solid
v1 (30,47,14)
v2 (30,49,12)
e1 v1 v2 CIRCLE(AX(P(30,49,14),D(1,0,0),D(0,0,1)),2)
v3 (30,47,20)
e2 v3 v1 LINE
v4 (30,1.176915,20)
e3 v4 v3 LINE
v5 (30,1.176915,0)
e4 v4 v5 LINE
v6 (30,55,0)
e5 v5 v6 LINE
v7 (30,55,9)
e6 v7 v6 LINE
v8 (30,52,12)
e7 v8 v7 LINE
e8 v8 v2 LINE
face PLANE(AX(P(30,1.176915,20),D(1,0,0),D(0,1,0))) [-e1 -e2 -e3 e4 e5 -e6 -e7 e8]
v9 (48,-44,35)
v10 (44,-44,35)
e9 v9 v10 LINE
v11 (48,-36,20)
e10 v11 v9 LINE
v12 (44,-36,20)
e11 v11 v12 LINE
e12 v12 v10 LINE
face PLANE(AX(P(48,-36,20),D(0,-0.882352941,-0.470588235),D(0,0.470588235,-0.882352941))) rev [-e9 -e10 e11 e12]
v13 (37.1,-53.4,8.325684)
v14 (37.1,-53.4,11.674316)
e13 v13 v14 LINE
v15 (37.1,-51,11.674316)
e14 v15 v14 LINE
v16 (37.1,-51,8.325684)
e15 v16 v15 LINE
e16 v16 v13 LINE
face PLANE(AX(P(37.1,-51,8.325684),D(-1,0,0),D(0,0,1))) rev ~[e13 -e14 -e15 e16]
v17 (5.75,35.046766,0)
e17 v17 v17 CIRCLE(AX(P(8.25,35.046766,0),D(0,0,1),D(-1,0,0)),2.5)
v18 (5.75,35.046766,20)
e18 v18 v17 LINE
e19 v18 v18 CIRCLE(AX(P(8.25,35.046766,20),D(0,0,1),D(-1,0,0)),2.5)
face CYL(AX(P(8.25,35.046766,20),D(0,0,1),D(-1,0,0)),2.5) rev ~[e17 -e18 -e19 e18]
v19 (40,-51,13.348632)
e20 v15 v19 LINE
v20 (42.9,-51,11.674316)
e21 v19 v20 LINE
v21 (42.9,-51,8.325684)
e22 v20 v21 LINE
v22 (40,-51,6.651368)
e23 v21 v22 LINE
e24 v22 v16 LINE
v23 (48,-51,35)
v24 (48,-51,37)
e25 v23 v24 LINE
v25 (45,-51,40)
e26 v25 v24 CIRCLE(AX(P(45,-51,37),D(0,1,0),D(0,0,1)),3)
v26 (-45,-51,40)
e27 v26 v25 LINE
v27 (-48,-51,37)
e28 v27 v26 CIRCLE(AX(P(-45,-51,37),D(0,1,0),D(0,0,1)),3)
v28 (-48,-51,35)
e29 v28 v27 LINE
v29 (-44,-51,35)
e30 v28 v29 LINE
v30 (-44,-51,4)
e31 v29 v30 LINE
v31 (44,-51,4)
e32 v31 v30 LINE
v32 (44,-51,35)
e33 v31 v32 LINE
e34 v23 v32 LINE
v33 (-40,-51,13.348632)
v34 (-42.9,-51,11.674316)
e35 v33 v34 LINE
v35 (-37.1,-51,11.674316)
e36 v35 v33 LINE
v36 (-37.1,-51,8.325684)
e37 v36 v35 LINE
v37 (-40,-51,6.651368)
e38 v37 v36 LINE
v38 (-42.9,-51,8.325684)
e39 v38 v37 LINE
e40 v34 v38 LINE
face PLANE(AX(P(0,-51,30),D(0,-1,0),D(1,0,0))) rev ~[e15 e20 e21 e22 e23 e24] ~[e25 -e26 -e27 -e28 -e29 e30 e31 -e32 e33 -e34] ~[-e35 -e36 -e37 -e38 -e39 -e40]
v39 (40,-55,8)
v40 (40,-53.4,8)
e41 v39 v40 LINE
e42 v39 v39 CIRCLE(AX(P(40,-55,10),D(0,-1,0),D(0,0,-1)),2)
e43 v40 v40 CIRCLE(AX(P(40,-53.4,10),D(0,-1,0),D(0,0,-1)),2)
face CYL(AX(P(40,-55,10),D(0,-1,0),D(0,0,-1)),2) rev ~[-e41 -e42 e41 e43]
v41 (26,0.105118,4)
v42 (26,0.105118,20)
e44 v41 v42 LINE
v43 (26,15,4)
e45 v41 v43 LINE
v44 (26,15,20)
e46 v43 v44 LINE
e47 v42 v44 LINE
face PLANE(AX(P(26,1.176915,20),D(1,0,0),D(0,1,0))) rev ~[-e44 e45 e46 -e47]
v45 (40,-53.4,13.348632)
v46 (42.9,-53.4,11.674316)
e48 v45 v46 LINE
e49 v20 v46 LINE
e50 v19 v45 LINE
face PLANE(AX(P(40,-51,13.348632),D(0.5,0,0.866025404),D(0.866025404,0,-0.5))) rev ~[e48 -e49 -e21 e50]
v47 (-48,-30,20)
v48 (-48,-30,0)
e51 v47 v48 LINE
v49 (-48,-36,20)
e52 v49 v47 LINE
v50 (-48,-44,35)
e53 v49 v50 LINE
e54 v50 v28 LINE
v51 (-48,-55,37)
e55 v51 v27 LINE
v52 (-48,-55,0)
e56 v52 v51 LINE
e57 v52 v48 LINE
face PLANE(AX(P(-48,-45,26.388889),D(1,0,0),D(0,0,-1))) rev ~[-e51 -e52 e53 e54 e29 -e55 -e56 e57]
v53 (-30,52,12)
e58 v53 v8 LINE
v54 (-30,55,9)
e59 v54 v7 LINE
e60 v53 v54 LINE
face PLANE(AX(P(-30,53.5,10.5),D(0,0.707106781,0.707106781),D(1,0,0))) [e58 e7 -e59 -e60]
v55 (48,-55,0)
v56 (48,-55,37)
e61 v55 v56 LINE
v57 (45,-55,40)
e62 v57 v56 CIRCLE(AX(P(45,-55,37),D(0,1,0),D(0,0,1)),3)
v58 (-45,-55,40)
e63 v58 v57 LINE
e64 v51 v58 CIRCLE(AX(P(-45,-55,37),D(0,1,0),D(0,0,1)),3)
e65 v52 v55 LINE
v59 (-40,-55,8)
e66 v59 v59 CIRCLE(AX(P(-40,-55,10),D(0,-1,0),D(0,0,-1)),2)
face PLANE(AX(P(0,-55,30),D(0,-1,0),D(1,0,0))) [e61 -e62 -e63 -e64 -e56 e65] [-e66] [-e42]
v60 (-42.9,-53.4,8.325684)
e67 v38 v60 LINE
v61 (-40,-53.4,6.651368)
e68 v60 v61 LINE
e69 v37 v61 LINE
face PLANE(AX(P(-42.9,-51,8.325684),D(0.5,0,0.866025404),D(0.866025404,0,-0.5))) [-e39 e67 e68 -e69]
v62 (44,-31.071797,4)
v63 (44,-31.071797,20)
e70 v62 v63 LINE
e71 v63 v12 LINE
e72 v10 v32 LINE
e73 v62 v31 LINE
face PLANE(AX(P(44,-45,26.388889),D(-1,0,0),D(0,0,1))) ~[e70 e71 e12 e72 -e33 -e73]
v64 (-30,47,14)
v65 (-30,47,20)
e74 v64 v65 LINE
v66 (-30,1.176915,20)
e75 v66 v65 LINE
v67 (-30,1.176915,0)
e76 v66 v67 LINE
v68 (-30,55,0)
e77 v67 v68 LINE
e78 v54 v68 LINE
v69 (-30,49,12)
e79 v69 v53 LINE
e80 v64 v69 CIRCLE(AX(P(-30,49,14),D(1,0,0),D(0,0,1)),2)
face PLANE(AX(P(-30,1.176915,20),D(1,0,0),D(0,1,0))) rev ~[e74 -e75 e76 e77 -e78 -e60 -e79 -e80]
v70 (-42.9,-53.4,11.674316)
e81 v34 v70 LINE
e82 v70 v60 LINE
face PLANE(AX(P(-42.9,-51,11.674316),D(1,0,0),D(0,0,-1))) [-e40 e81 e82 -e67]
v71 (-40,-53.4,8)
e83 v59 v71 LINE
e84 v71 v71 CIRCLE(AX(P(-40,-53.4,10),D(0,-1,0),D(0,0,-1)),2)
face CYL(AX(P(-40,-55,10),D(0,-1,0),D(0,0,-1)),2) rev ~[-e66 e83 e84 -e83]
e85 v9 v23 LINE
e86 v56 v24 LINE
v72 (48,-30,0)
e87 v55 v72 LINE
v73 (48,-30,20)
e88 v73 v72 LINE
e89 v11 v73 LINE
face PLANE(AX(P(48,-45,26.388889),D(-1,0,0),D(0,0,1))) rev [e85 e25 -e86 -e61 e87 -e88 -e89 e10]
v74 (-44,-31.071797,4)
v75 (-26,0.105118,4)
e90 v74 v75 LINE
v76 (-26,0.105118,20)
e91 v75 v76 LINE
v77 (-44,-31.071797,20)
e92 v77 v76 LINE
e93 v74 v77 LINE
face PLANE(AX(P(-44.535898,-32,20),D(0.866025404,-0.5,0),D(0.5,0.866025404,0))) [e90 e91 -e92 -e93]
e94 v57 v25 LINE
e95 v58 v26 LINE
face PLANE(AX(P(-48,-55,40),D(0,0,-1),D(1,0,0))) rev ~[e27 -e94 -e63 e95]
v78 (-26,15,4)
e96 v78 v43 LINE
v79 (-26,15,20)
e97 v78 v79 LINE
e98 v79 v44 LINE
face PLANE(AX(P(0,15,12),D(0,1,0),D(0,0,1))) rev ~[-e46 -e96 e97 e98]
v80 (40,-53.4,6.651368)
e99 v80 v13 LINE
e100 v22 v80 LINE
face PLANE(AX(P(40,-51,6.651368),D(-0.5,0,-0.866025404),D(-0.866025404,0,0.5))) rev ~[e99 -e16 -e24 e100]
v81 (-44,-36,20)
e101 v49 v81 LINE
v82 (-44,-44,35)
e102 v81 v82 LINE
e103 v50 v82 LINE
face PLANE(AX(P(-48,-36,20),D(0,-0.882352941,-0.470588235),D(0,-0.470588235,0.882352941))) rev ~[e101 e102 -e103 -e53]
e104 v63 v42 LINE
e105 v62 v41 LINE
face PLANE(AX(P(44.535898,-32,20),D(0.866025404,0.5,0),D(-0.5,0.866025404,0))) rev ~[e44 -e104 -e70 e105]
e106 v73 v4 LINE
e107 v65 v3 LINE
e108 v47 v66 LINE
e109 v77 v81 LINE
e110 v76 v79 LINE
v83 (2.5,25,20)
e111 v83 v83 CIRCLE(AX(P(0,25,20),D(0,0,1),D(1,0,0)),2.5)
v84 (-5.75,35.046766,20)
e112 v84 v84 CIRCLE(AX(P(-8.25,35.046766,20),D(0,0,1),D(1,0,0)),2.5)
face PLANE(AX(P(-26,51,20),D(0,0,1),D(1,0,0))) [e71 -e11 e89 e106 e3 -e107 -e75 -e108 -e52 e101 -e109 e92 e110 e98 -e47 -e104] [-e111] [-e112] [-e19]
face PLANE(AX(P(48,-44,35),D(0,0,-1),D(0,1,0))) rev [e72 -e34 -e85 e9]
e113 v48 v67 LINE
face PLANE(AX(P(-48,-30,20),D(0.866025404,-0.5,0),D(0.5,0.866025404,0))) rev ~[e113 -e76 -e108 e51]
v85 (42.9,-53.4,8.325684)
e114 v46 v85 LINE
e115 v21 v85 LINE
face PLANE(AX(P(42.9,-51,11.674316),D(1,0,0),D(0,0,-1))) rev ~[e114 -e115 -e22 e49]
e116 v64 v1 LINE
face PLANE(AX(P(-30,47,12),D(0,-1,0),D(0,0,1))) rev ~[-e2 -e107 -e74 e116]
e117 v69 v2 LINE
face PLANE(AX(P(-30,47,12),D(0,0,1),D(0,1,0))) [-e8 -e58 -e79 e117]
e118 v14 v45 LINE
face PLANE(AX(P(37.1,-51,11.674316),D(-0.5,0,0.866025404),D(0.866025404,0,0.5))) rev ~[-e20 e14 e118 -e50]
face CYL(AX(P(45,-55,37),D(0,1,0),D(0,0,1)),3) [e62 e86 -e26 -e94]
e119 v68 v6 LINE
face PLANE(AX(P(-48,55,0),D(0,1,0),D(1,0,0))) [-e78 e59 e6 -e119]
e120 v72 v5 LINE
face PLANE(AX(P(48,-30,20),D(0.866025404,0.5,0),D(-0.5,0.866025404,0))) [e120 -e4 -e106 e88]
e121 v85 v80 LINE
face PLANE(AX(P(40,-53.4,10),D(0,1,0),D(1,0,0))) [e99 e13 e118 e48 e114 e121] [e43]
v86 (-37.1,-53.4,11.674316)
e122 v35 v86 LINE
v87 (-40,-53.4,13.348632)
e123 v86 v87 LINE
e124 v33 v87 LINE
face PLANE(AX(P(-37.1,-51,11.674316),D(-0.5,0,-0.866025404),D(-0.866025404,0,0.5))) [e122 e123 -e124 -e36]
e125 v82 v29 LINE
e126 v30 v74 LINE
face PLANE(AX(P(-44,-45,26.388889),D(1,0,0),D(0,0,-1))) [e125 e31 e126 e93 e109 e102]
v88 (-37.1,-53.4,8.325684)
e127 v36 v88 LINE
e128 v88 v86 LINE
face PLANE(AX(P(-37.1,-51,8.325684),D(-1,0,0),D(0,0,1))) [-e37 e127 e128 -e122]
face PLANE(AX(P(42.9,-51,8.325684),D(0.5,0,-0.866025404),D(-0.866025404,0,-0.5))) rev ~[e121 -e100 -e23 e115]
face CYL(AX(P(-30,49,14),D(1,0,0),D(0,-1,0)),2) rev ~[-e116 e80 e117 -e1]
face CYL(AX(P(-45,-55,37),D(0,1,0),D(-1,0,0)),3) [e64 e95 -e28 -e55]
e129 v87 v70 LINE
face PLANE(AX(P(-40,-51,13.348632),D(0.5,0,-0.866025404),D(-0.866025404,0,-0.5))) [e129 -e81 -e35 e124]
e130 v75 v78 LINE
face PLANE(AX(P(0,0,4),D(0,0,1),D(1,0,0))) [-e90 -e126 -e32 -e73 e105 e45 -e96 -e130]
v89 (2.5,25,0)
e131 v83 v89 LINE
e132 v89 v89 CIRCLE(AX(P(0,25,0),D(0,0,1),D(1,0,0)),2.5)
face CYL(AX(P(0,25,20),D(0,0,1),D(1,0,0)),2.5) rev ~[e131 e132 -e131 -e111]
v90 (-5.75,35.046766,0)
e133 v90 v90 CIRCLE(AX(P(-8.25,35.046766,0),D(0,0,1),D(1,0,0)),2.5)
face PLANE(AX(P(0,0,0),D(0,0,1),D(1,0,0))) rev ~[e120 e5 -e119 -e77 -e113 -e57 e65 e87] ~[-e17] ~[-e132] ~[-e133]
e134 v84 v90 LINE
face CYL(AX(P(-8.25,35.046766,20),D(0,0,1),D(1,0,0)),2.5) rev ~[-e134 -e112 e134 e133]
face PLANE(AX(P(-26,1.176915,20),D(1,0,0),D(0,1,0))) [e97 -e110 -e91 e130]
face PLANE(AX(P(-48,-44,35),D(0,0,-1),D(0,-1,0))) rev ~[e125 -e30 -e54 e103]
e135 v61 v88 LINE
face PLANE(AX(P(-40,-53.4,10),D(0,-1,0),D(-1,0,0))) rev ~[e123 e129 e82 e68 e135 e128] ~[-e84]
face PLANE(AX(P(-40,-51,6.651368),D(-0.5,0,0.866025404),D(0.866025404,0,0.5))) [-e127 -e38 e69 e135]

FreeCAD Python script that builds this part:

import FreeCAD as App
import Part
import Sketcher

V = App.Vector
Q = App.Units.Quantity


def edges_at(feature, points):
    """Names of the edges that pass closest to the given points."""
    edges = feature.Shape.Edges
    near = lambda p: min(range(len(edges)), key=lambda i: edges[i].distToShape(Part.Vertex(*p))[0])
    return sorted({f"Edge{near(p) + 1}" for p in points})


def faces_at(feature, points):
    """Names of the faces that lie closest to the given points."""
    faces = feature.Shape.Faces
    near = lambda p: min(range(len(faces)), key=lambda i: faces[i].distToShape(Part.Vertex(*p))[0])
    return sorted({f"Face{near(p) + 1}" for p in points})


def add_polygon(sketch, points):
    """Adds a closed chain of lines whose ends are joined by coincident constraints."""
    first, n = sketch.GeometryCount, len(points)
    for a, b in zip(points, points[1:] + points[:1]):
        sketch.addGeometry(Part.LineSegment(App.Vector(*a, 0), App.Vector(*b, 0)), False)
    for i in range(n):
        sketch.addConstraint(Sketcher.Constraint("Coincident", first + i, 2, first + (i + 1) % n, 1))

doc = App.newDocument("Part")
body = doc.addObject("PartDesign::Body", "Body")

# Sketch on XY plane
sketch1 = body.newObject("Sketcher::SketchObject", "Sketch")
sketch1.AttachmentSupport = (doc.getObject("XY_Plane"), [""])
sketch1.MapMode = "FlatFace"
add_polygon(sketch1, [(-48, 55), (-48, -55), (48, -55), (48, 55)])  # lines 0-3
sketch1.addConstraint(Sketcher.Constraint("Vertical", 0))
sketch1.addConstraint(Sketcher.Constraint("Horizontal", 1))
sketch1.addConstraint(Sketcher.Constraint("Vertical", 2))
sketch1.addConstraint(Sketcher.Constraint("Horizontal", 3))
sketch1.addConstraint(Sketcher.Constraint("Symmetric", 0, 2, 2, 2, -1, 1))
sketch1.addConstraint(Sketcher.Constraint("DistanceX", 1, 1, 1, 2, 96.0))
sketch1.addConstraint(Sketcher.Constraint("DistanceY", 0, 2, 0, 1, 110.0))
pad1 = body.newObject("PartDesign::Pad", "Pad")
pad1.Profile = sketch1
pad1.Length = 20

# Sketch on XY plane
sketch2 = body.newObject("Sketcher::SketchObject", "Sketch001")
sketch2.AttachmentSupport = (doc.getObject("XY_Plane"), [""])
sketch2.MapMode = "FlatFace"
sketch2.AttachmentOffset = App.Placement(V(0, 0, 20), App.Rotation())
add_polygon(sketch2, [(-48, -30), (-30, 1), (-30, 55), (-48, 55)])  # lines 0-3
add_polygon(sketch2, [(48, -30), (48, 55), (30, 55), (30, 1)])  # lines 4-7
sketch2.addConstraint(Sketcher.Constraint("Vertical", 1))
sketch2.addConstraint(Sketcher.Constraint("Horizontal", 2))
sketch2.addConstraint(Sketcher.Constraint("Vertical", 3))
sketch2.addConstraint(Sketcher.Constraint("Vertical", 4))
sketch2.addConstraint(Sketcher.Constraint("Horizontal", 5))
sketch2.addConstraint(Sketcher.Constraint("Vertical", 6))
sketch2.addConstraint(Sketcher.Constraint("Symmetric", 2, 2, 4, 2, -2))
sketch2.addConstraint(Sketcher.Constraint("Symmetric", 0, 2, 6, 2, -2))
sketch2.addConstraint(Sketcher.Constraint("Horizontal", 3, 2, 7, 2))
sketch2.addConstraint(Sketcher.Constraint("DistanceX", 2, 2, 2, 1, 18.0))
sketch2.addConstraint(Sketcher.Constraint("DistanceY", 3, 2, 3, 1, 85.0))
sketch2.addConstraint(Sketcher.Constraint("Angle", 0, Q("60 deg")))
sketch2.addConstraint(Sketcher.Constraint("DistanceX", 0, 2, -1, 1, 30.0))
sketch2.addConstraint(Sketcher.Constraint("DistanceY", -1, 1, 1, 2, 55.0))
pocket1 = body.newObject("PartDesign::Pocket", "Pocket")
pocket1.Profile = sketch2
pocket1.Length = 20
doc.recompute()

thickness = body.newObject("PartDesign::Thickness", "Thickness")
thickness.Base = (pocket1, faces_at(pocket1, [(0, 0, 20)]))
thickness.Value = 4
thickness.Reversed = True
thickness.Join = "Intersection"

# Sketch on XZ plane
sketch3 = body.newObject("Sketcher::SketchObject", "Sketch002")
sketch3.AttachmentSupport = (doc.getObject("XZ_Plane"), [""])
sketch3.MapMode = "FlatFace"
sketch3.AttachmentOffset = App.Placement(V(0, 0, -51), App.Rotation())
add_polygon(sketch3, [(26, 4), (-26, 4), (-26, 20), (26, 20)])  # lines 0-3
sketch3.addConstraint(Sketcher.Constraint("Horizontal", 0))
sketch3.addConstraint(Sketcher.Constraint("Vertical", 1))
sketch3.addConstraint(Sketcher.Constraint("Horizontal", 2))
sketch3.addConstraint(Sketcher.Constraint("Vertical", 3))
sketch3.addConstraint(Sketcher.Constraint("DistanceX", 0, 2, 0, 1, 52.0))
sketch3.addConstraint(Sketcher.Constraint("DistanceY", 1, 1, 1, 2, 16.0))
sketch3.addConstraint(Sketcher.Constraint("DistanceX", 0, 2, -1, 1, 26.0))
sketch3.addConstraint(Sketcher.Constraint("DistanceY", -1, 1, 0, 2, 4.0))
pad2 = body.newObject("PartDesign::Pad", "Pad001")
pad2.Profile = sketch3
pad2.Length = 36

# Sketch on XZ plane
sketch4 = body.newObject("Sketcher::SketchObject", "Sketch003")
sketch4.AttachmentSupport = (doc.getObject("XZ_Plane"), [""])
sketch4.MapMode = "FlatFace"
sketch4.AttachmentOffset = App.Placement(V(0, 0, 55), App.Rotation())
sketch4.addGeometry(Part.Circle(V(-40, 10, 0), V(0, 0, 1), 2), False)
sketch4.addConstraint(Sketcher.Constraint("Diameter", 0, 4.0))
sketch4.addConstraint(Sketcher.Constraint("DistanceX", 0, 3, -1, 1, 40.0))
sketch4.addConstraint(Sketcher.Constraint("DistanceY", -1, 1, 0, 3, 10.0))
pocket2 = body.newObject("PartDesign::Pocket", "Pocket001")
pocket2.Profile = sketch4
pocket2.Type = "UpToFirst"

# Sketch on XZ plane
sketch5 = body.newObject("Sketcher::SketchObject", "Sketch004")
sketch5.AttachmentSupport = (doc.getObject("XZ_Plane"), [""])
sketch5.MapMode = "FlatFace"
sketch5.AttachmentOffset = App.Placement(V(0, 0, 55), App.Rotation())
sketch5.addGeometry(Part.Circle(V(40, 10, 0), V(0, 0, 1), 2), False)
sketch5.addConstraint(Sketcher.Constraint("Diameter", 0, 4.0))
sketch5.addConstraint(Sketcher.Constraint("DistanceX", -1, 1, 0, 3, 40.0))
sketch5.addConstraint(Sketcher.Constraint("DistanceY", -1, 1, 0, 3, 10.0))
pocket3 = body.newObject("PartDesign::Pocket", "Pocket002")
pocket3.Profile = sketch5
pocket3.Type = "UpToFirst"

# Sketch on XY plane
sketch6 = body.newObject("Sketcher::SketchObject", "Sketch005")
sketch6.AttachmentSupport = (doc.getObject("XY_Plane"), [""])
sketch6.MapMode = "FlatFace"
sketch6.AttachmentOffset = App.Placement(V(0, 0, 20), App.Rotation())
sketch6.addGeometry(Part.Circle(V(0, 25, 0), V(0, 0, 1), 2.5), False)
sketch6.addConstraint(Sketcher.Constraint("PointOnObject", 0, 3, -2))
sketch6.addConstraint(Sketcher.Constraint("Diameter", 0, 5.0))
sketch6.addConstraint(Sketcher.Constraint("DistanceY", -1, 1, 0, 3, 25.0))
pocket4 = body.newObject("PartDesign::Pocket", "Pocket003")
pocket4.Profile = sketch6
pocket4.Type = "UpToFirst"

# Sketch on XY plane
sketch7 = body.newObject("Sketcher::SketchObject", "Sketch006")
sketch7.AttachmentSupport = (doc.getObject("XY_Plane"), [""])
sketch7.MapMode = "FlatFace"
sketch7.AttachmentOffset = App.Placement(V(0, 0, 20), App.Rotation())
sketch7.addGeometry(Part.Circle(V(-8.2, 35, 0), V(0, 0, 1), 2.5), False)
sketch7.addConstraint(Sketcher.Constraint("Diameter", 0, 5.0))
sketch7.addConstraint(Sketcher.Constraint("DistanceX", 0, 3, -1, 1, 8.25))
sketch7.addConstraint(Sketcher.Constraint("DistanceY", -1, 1, 0, 3, 35.046766))
pocket5 = body.newObject("PartDesign::Pocket", "Pocket004")
pocket5.Profile = sketch7
pocket5.Type = "UpToFirst"

# Sketch on XY plane
sketch8 = body.newObject("Sketcher::SketchObject", "Sketch007")
sketch8.AttachmentSupport = (doc.getObject("XY_Plane"), [""])
sketch8.MapMode = "FlatFace"
sketch8.AttachmentOffset = App.Placement(V(0, 0, 20), App.Rotation())
sketch8.addGeometry(Part.Circle(V(8.2, 35, 0), V(0, 0, 1), 2.5), False)
sketch8.addConstraint(Sketcher.Constraint("Diameter", 0, 5.0))
sketch8.addConstraint(Sketcher.Constraint("DistanceX", -1, 1, 0, 3, 8.25))
sketch8.addConstraint(Sketcher.Constraint("DistanceY", -1, 1, 0, 3, 35.046766))
pocket6 = body.newObject("PartDesign::Pocket", "Pocket005")
pocket6.Profile = sketch8
pocket6.Type = "UpToFirst"

# Sketch on XZ plane
sketch9 = body.newObject("Sketcher::SketchObject", "Sketch008")
sketch9.AttachmentSupport = (doc.getObject("XZ_Plane"), [""])
sketch9.MapMode = "FlatFace"
sketch9.AttachmentOffset = App.Placement(V(0, 0, 55), App.Rotation())
add_polygon(sketch9, [(-48, 40), (-48, 20), (48, 20), (48, 40)])  # lines 0-3
sketch9.addConstraint(Sketcher.Constraint("Vertical", 0))
sketch9.addConstraint(Sketcher.Constraint("Horizontal", 1))
sketch9.addConstraint(Sketcher.Constraint("Vertical", 2))
sketch9.addConstraint(Sketcher.Constraint("Horizontal", 3))
sketch9.addConstraint(Sketcher.Constraint("DistanceX", 1, 1, 1, 2, 96.0))
sketch9.addConstraint(Sketcher.Constraint("DistanceY", 0, 2, 0, 1, 20.0))
sketch9.addConstraint(Sketcher.Constraint("DistanceX", 0, 2, -1, 1, 48.0))
sketch9.addConstraint(Sketcher.Constraint("DistanceY", -1, 1, 0, 2, 20.0))
pad3 = body.newObject("PartDesign::Pad", "Pad002")
pad3.Profile = sketch9
pad3.Length = 4
pad3.Reversed = True

# Sketch on YZ plane
sketch10 = body.newObject("Sketcher::SketchObject", "Sketch009")
sketch10.AttachmentSupport = (doc.getObject("YZ_Plane"), [""])
sketch10.MapMode = "FlatFace"
sketch10.AttachmentOffset = App.Placement(V(0, 0, -48), App.Rotation())
add_polygon(sketch10, [(-44, 35), (-36, 20), (-51, 20), (-51, 35)])  # lines 0-3
sketch10.addConstraint(Sketcher.Constraint("Horizontal", 1))
sketch10.addConstraint(Sketcher.Constraint("Vertical", 2))
sketch10.addConstraint(Sketcher.Constraint("Horizontal", 3))
sketch10.addConstraint(Sketcher.Constraint("Equal", 1, 2))
sketch10.addConstraint(Sketcher.Constraint("DistanceX", 1, 2, 1, 1, 15.0))
sketch10.addConstraint(Sketcher.Constraint("DistanceX", 3, 1, 3, 2, 7.0))
sketch10.addConstraint(Sketcher.Constraint("DistanceX", 0, 2, -1, 1, 36.0))
sketch10.addConstraint(Sketcher.Constraint("DistanceY", -1, 1, 0, 2, 20.0))
pad4 = body.newObject("PartDesign::Pad", "Pad003")
pad4.Profile = sketch10
pad4.Length = 4
doc.recompute()

mirrored = body.newObject("PartDesign::Mirrored", "Mirrored")
mirrored.Originals = [pad4]
mirrored.MirrorPlane = (doc.getObject("YZ_Plane"), [""])
body.Tip = mirrored
doc.recompute()

fillet = body.newObject("PartDesign::Fillet", "Fillet")
fillet.Base = (mirrored, edges_at(mirrored, [(-48, -53, 40), (48, -53, 40)]))
fillet.Radius = 3

# Sketch on XZ plane
sketch11 = body.newObject("Sketcher::SketchObject", "Sketch010")
sketch11.AttachmentSupport = (doc.getObject("XZ_Plane"), [""])
sketch11.MapMode = "FlatFace"
sketch11.AttachmentOffset = App.Placement(V(0, 0, 51), App.Rotation())
add_polygon(sketch11, [(40, 13.3), (42.9, 11.7), (42.9, 8.3), (40, 6.7), (37.1, 8.3), (37.1, 11.7)])  # lines 0-5
add_polygon(sketch11, [(-40, 13.3), (-37.1, 11.7), (-37.1, 8.3), (-40, 6.7), (-42.9, 8.3), (-42.9, 11.7)])  # lines 6-11
sketch11.addConstraint(Sketcher.Constraint("Vertical", 1))
sketch11.addConstraint(Sketcher.Constraint("Vertical", 4))
sketch11.addConstraint(Sketcher.Constraint("Vertical", 7))
sketch11.addConstraint(Sketcher.Constraint("Vertical", 10))
sketch11.addConstraint(Sketcher.Constraint("Symmetric", 4, 2, 6, 2, -2))
sketch11.addConstraint(Sketcher.Constraint("Symmetric", 2, 2, 8, 2, -2))
sketch11.addConstraint(Sketcher.Constraint("Symmetric", 1, 2, 9, 2, -2))
sketch11.addConstraint(Sketcher.Constraint("Symmetric", 5, 2, 11, 2, -2))
sketch11.addConstraint(Sketcher.Constraint("Parallel", 0, 3))
sketch11.addConstraint(Sketcher.Constraint("Parallel", 2, 5))
sketch11.addConstraint(Sketcher.Constraint("Parallel", 3, 6))
sketch11.addConstraint(Sketcher.Constraint("Parallel", 5, 8))
sketch11.addConstraint(Sketcher.Constraint("Parallel", 8, 11))
sketch11.addConstraint(Sketcher.Constraint("Horizontal", 1, 2, 3, 2))
sketch11.addConstraint(Sketcher.Constraint("Horizontal", 0, 2, 4, 2))
sketch11.addConstraint(Sketcher.Constraint("Angle", 0, Q("-30 deg")))
sketch11.addConstraint(Sketcher.Constraint("DistanceX", -1, 1, 2, 2, 40.0))
sketch11.addConstraint(Sketcher.Constraint("DistanceX", -1, 1, 0, 2, 42.9))
sketch11.addConstraint(Sketcher.Constraint("DistanceY", 1, 2, 1, 1, 3.348632))
sketch11.addConstraint(Sketcher.Constraint("DistanceY", -1, 1, 2, 2, 6.651368))
pocket7 = body.newObject("PartDesign::Pocket", "Pocket006")
pocket7.Profile = sketch11
pocket7.Length = 2.4
pocket7.Reversed = True

# Sketch on YZ plane
sketch12 = body.newObject("Sketcher::SketchObject", "Sketch011")
sketch12.AttachmentSupport = (doc.getObject("YZ_Plane"), [""])
sketch12.MapMode = "FlatFace"
sketch12.AttachmentOffset = App.Placement(V(0, 0, -30), App.Rotation())
add_polygon(sketch12, [(55, 12), (47, 12), (47, 20), (55, 20)])  # lines 0-3
sketch12.addConstraint(Sketcher.Constraint("Horizontal", 0))
sketch12.addConstraint(Sketcher.Constraint("Vertical", 1))
sketch12.addConstraint(Sketcher.Constraint("Horizontal", 2))
sketch12.addConstraint(Sketcher.Constraint("Vertical", 3))
sketch12.addConstraint(Sketcher.Constraint("Equal", 2, 1))
sketch12.addConstraint(Sketcher.Constraint("DistanceX", 0, 2, 0, 1, 8.0))
sketch12.addConstraint(Sketcher.Constraint("DistanceX", -1, 1, 0, 2, 47.0))
sketch12.addConstraint(Sketcher.Constraint("DistanceY", -1, 1, 0, 2, 12.0))
pocket8 = body.newObject("PartDesign::Pocket", "Pocket007")
pocket8.Profile = sketch12
pocket8.Type = "ThroughAll"
pocket8.Reversed = True
doc.recompute()

fillet2 = body.newObject("PartDesign::Fillet", "Fillet001")
fillet2.Base = (pocket8, edges_at(pocket8, [(0, 47, 12)]))
fillet2.Radius = 2
doc.recompute()

chamfer = body.newObject("PartDesign::Chamfer", "Chamfer")
chamfer.Base = (fillet2, edges_at(fillet2, [(0, 55, 12)]))
chamfer.Size = 3

doc.recompute()
